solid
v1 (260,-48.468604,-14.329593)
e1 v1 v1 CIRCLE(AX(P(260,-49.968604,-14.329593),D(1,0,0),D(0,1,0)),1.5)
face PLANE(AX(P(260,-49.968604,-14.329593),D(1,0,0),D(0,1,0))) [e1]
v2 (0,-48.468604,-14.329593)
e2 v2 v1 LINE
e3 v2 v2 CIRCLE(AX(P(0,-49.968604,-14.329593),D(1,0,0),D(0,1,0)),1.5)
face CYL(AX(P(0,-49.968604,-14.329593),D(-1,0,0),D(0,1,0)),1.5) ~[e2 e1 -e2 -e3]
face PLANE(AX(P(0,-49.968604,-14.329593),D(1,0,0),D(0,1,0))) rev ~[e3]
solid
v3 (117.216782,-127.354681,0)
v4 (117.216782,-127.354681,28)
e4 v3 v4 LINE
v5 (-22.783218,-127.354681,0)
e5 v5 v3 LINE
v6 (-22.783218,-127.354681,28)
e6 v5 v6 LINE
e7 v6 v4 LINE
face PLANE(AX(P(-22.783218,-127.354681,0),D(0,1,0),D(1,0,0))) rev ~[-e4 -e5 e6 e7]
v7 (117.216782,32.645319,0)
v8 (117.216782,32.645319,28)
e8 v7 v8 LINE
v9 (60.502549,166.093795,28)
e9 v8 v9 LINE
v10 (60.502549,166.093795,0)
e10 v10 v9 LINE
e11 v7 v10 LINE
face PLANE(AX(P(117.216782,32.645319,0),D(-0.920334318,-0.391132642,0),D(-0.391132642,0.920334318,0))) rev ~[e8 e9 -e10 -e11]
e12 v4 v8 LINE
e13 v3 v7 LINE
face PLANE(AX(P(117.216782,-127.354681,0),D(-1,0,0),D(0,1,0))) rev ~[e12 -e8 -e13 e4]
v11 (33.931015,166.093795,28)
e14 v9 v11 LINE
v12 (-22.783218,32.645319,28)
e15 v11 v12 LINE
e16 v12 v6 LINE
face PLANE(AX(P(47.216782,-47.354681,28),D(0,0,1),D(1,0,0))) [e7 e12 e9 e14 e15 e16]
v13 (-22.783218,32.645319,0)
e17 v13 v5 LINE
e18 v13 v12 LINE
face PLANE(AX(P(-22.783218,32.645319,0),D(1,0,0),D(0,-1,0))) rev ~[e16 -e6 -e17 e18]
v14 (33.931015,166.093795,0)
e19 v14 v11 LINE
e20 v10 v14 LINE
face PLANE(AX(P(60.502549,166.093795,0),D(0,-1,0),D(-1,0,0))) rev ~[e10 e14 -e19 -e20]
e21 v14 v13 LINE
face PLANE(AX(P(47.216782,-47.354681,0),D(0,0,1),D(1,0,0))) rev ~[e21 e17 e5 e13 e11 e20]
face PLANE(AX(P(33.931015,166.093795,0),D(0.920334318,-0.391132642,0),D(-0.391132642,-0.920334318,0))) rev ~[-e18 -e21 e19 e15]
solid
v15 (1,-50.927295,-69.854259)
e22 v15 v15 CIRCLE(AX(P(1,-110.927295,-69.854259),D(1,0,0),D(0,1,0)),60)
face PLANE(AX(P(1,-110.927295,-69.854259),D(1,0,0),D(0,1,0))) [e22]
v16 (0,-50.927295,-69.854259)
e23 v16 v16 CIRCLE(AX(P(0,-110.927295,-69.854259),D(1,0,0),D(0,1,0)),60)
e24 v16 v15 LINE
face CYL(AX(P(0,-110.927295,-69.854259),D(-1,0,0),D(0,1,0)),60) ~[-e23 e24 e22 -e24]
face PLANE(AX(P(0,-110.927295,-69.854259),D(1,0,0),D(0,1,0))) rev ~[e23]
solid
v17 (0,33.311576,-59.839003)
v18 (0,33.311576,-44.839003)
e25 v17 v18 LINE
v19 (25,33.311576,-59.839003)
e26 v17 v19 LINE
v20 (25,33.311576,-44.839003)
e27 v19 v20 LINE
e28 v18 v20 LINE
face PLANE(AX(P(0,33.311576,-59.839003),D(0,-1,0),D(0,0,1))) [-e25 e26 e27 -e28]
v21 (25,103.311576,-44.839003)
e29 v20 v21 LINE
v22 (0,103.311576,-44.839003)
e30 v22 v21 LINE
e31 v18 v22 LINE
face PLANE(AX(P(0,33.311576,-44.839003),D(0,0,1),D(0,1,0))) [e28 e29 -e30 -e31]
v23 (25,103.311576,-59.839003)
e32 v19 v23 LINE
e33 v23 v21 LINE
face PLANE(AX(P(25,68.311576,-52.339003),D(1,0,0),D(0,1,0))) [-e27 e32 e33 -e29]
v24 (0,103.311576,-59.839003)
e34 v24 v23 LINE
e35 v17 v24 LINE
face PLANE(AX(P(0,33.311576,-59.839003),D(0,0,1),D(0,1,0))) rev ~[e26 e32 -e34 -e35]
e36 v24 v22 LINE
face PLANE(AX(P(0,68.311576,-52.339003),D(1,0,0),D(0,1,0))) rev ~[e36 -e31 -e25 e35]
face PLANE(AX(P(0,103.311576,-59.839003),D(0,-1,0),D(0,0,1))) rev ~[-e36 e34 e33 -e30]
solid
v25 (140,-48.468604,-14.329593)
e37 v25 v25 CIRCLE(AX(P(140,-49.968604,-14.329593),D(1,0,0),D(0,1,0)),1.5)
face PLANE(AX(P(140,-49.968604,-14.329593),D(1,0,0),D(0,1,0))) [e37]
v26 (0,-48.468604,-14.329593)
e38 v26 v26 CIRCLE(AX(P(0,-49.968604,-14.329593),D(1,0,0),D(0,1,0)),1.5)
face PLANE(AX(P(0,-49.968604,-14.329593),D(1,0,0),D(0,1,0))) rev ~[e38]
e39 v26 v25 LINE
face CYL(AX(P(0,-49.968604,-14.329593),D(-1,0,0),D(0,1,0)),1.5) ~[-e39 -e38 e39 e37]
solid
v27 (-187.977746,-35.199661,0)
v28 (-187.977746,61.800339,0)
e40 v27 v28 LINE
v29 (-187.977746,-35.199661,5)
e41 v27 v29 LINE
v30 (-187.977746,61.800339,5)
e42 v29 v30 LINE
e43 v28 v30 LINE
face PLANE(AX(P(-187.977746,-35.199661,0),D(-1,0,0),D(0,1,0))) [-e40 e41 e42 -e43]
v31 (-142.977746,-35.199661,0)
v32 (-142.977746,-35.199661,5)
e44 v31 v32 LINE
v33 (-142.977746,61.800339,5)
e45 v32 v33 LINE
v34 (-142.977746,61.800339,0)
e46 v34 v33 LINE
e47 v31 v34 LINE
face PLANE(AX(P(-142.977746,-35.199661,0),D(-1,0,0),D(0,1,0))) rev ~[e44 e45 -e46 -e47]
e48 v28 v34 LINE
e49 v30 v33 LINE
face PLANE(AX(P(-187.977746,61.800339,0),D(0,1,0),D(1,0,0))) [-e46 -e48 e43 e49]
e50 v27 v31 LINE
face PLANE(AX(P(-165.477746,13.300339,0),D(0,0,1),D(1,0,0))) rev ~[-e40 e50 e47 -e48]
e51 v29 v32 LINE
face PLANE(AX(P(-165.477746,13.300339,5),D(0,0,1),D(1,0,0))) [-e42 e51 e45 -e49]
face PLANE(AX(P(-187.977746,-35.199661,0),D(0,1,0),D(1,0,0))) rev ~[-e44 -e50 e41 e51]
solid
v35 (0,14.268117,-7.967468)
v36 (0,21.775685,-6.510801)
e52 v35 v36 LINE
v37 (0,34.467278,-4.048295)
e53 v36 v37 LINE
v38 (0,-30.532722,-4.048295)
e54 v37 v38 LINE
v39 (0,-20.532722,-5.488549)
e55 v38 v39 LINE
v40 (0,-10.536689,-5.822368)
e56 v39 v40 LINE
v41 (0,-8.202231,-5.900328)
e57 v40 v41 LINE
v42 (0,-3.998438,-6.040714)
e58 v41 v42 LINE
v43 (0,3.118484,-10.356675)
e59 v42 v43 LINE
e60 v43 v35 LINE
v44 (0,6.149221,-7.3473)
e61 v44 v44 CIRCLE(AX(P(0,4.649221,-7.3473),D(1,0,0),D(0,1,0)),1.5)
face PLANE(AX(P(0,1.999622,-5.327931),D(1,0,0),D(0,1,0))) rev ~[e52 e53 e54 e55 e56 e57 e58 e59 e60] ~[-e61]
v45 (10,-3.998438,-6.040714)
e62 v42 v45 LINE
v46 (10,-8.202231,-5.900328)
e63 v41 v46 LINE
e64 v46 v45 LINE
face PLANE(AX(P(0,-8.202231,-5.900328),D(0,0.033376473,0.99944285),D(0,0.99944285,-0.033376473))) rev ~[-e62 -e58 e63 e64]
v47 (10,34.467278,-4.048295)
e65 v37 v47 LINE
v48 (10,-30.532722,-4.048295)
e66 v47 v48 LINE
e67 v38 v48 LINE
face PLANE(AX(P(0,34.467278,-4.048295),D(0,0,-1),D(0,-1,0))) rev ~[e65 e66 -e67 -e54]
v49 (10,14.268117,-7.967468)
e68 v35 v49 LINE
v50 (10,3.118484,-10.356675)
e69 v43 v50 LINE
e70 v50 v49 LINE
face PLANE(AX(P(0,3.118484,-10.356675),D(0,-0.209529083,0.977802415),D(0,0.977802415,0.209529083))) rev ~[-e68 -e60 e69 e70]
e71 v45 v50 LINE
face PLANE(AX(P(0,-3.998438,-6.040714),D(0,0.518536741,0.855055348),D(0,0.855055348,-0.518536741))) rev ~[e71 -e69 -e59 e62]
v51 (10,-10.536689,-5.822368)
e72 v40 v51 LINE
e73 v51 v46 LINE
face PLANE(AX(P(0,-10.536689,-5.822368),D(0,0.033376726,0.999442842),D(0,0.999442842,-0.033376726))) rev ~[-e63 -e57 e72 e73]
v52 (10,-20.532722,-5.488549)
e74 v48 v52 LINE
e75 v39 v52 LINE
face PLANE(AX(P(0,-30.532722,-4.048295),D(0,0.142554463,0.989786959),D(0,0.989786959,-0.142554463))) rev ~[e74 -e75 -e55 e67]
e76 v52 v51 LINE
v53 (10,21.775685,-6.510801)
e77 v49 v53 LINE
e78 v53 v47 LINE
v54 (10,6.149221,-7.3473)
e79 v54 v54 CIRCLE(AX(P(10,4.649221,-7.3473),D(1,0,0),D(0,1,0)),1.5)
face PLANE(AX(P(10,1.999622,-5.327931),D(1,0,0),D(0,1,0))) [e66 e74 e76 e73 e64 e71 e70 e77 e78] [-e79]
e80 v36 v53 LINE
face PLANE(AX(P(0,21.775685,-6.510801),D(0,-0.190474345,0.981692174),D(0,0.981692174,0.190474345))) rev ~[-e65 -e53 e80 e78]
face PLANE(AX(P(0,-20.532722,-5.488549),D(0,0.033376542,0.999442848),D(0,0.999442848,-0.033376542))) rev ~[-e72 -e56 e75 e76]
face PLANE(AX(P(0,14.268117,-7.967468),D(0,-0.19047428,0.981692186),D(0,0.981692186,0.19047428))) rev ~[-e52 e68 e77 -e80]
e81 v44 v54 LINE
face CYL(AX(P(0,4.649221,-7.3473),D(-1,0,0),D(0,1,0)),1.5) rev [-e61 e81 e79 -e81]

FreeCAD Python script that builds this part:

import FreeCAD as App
import Part
import Sketcher
Q = App.Units.Quantity

doc = App.newDocument("Part")
body = doc.addObject("PartDesign::Body", "Body")

# Sketch on XY plane
sketch1 = body.newObject("Sketcher::SketchObject", "Sketch")
sketch1.AttachmentSupport = (doc.getObject("XY_Plane"), [""])
sketch1.MapMode = "FlatFace"
sketch1.addGeometry([
    Part.LineSegment(App.Vector(-23, 33, 0), App.Vector(-23, -127, 0)),  # 0
    Part.LineSegment(App.Vector(-23, -127, 0), App.Vector(117, -127, 0)),  # 1
    Part.LineSegment(App.Vector(117, -127, 0), App.Vector(117, 33, 0)),  # 2
    Part.LineSegment(App.Vector(117, 33, 0), App.Vector(61, 166, 0)),  # 3
    Part.LineSegment(App.Vector(61, 166, 0), App.Vector(34, 166, 0)),  # 4
    Part.LineSegment(App.Vector(34, 166, 0), App.Vector(-23, 33, 0)),  # 5
], False)
sketch1.addConstraint([
    Sketcher.Constraint("Coincident", 0, 2, 1, 1),
    Sketcher.Constraint("Coincident", 1, 2, 2, 1),
    Sketcher.Constraint("Coincident", 2, 2, 3, 1),
    Sketcher.Constraint("Coincident", 3, 2, 4, 1),
    Sketcher.Constraint("Coincident", 4, 2, 5, 1),
    Sketcher.Constraint("Coincident", 5, 2, 0, 1),
    Sketcher.Constraint("Vertical", 0),
    Sketcher.Constraint("Horizontal", 1),
    Sketcher.Constraint("Vertical", 2),
    Sketcher.Constraint("Horizontal", 4),
    Sketcher.Constraint("Horizontal", 2, 2, 5, 2),
    Sketcher.Constraint("Equal", 3, 5),
    Sketcher.Constraint("DistanceX", 1, 1, 1, 2, Q("140 mm")),
    Sketcher.Constraint("DistanceY", 0, 2, 0, 1, Q("160 mm")),
    Sketcher.Constraint("Distance", 3, Q("145 mm")),
    Sketcher.Constraint("DistanceX", 4, 2, 4, 1, Q("26.571534 mm")),
    Sketcher.Constraint("DistanceX", 0, 2, -1, 1, Q("22.783218 mm")),
    Sketcher.Constraint("DistanceY", 0, 2, -1, 1, Q("127.354681 mm")),
])
pad1 = body.newObject("PartDesign::Pad", "Pad")
pad1.Profile = sketch1
pad1.Length = 28
body2 = doc.addObject("PartDesign::Body", "Body001")

# Sketch on YZ plane
sketch2 = body2.newObject("Sketcher::SketchObject", "Sketch001")
sketch2.AttachmentSupport = (doc.getObject("YZ_Plane001"), [""])
sketch2.MapMode = "FlatFace"
sketch2.addGeometry(Part.Circle(App.Vector(-111, -70, 0), App.Vector(0, 0, 1), 60), False)
sketch2.addConstraint([
    Sketcher.Constraint("Diameter", 0, Q("120 mm")),
    Sketcher.Constraint("DistanceY", 0, 3, -1, 1, Q("69.854259 mm")),
    Sketcher.Constraint("DistanceX", 0, 3, -1, 1, Q("110.927295 mm")),
])
pad2 = body2.newObject("PartDesign::Pad", "Pad001")
pad2.Profile = sketch2
pad2.Length = 1
body3 = doc.addObject("PartDesign::Body", "Body002")

# Sketch on YZ plane
sketch3 = body3.newObject("Sketcher::SketchObject", "Sketch002")
sketch3.AttachmentSupport = (doc.getObject("YZ_Plane002"), [""])
sketch3.MapMode = "FlatFace"
sketch3.addGeometry(Part.Circle(App.Vector(-50, -14.3, 0), App.Vector(0, 0, 1), 1.5), False)
sketch3.addConstraint([
    Sketcher.Constraint("Diameter", 0, Q("3 mm")),
    Sketcher.Constraint("DistanceX", 0, 3, -1, 1, Q("49.968604 mm")),
    Sketcher.Constraint("DistanceY", 0, 3, -1, 1, Q("14.329593 mm")),
])
pad3 = body3.newObject("PartDesign::Pad", "Pad002")
pad3.Profile = sketch3
pad3.Length = 260
body4 = doc.addObject("PartDesign::Body", "Body003")

# Sketch on YZ plane
sketch4 = body4.newObject("Sketcher::SketchObject", "Sketch003")
sketch4.AttachmentSupport = (doc.getObject("YZ_Plane003"), [""])
sketch4.MapMode = "FlatFace"
sketch4.addGeometry([
    Part.LineSegment(App.Vector(-30.5, -4, 0), App.Vector(-20.5, -5.5, 0)),  # 0
    Part.LineSegment(App.Vector(-20.5, -5.5, 0), App.Vector(-10.5, -5.8, 0)),  # 1
    Part.LineSegment(App.Vector(-10.5, -5.8, 0), App.Vector(-8.2, -5.9, 0)),  # 2
    Part.LineSegment(App.Vector(-8.2, -5.9, 0), App.Vector(-4, -6, 0)),  # 3
    Part.LineSegment(App.Vector(-4, -6, 0), App.Vector(3.1, -10.4, 0)),  # 4
    Part.LineSegment(App.Vector(3.1, -10.4, 0), App.Vector(14.3, -8, 0)),  # 5
    Part.LineSegment(App.Vector(14.3, -8, 0), App.Vector(21.8, -6.5, 0)),  # 6
    Part.LineSegment(App.Vector(21.8, -6.5, 0), App.Vector(34.5, -4, 0)),  # 7
    Part.LineSegment(App.Vector(34.5, -4, 0), App.Vector(-30.5, -4, 0)),  # 8
    Part.Circle(App.Vector(4.6, -7.3, 0), App.Vector(0, 0, 1), 1.5),  # 9
], False)
sketch4.addConstraint([
    Sketcher.Constraint("Coincident", 0, 2, 1, 1),
    Sketcher.Constraint("Coincident", 1, 2, 2, 1),
    Sketcher.Constraint("Coincident", 2, 2, 3, 1),
    Sketcher.Constraint("Coincident", 3, 2, 4, 1),
    Sketcher.Constraint("Coincident", 4, 2, 5, 1),
    Sketcher.Constraint("Coincident", 5, 2, 6, 1),
    Sketcher.Constraint("Coincident", 6, 2, 7, 1),
    Sketcher.Constraint("Coincident", 7, 2, 8, 1),
    Sketcher.Constraint("Coincident", 8, 2, 0, 1),
    Sketcher.Constraint("Horizontal", 8),
    Sketcher.Constraint("Parallel", 1, 2),
    Sketcher.Constraint("Parallel", 2, 3),
    Sketcher.Constraint("Parallel", 6, 7),
    Sketcher.Constraint("Diameter", 9, Q("3 mm")),
    Sketcher.Constraint("DistanceX", 8, 2, 8, 1, Q("65 mm")),
    Sketcher.Constraint("DistanceX", 8, 2, 0, 2, Q("10 mm")),
    Sketcher.Constraint("DistanceY", 9, 3, -1, 1, Q("7.3473 mm")),
    Sketcher.Constraint("DistanceY", 6, 2, -1, 1, Q("6.510801 mm")),
    Sketcher.Constraint("DistanceY", 5, 2, 1, 2, Q("2.1451 mm")),
    Sketcher.Constraint("DistanceX", 4, 2, 6, 2, Q("18.657201 mm")),
    Sketcher.Constraint("Distance", 2, Q("2.335759 mm")),
    Sketcher.Constraint("Distance", 6, Q("7.647578 mm")),
    Sketcher.Constraint("Distance", 7, Q("12.928282 mm")),
    Sketcher.Constraint("DistanceX", -1, 1, 9, 3, Q("4.649221 mm")),
    Sketcher.Constraint("DistanceX", 0, 2, -1, 1, Q("20.532722 mm")),
    Sketcher.Constraint("DistanceY", 0, 2, -1, 1, Q("5.488549 mm")),
    Sketcher.Constraint("DistanceX", 1, 2, -1, 1, Q("10.536689 mm")),
    Sketcher.Constraint("DistanceX", 3, 2, -1, 1, Q("3.998438 mm")),
    Sketcher.Constraint("DistanceY", 5, 2, -1, 1, Q("7.967468 mm")),
    Sketcher.Constraint("DistanceY", 4, 2, 3, 2, Q("4.315961 mm")),
])
pad4 = body4.newObject("PartDesign::Pad", "Pad003")
pad4.Profile = sketch4
pad4.Length = 10
body5 = doc.addObject("PartDesign::Body", "Body004")

# Sketch on YZ plane
sketch5 = body5.newObject("Sketcher::SketchObject", "Sketch004")
sketch5.AttachmentSupport = (doc.getObject("YZ_Plane004"), [""])
sketch5.MapMode = "FlatFace"
sketch5.addGeometry([
    Part.LineSegment(App.Vector(33, -45, 0), App.Vector(33, -60, 0)),
    Part.LineSegment(App.Vector(33, -60, 0), App.Vector(103, -60, 0)),
    Part.LineSegment(App.Vector(103, -60, 0), App.Vector(103, -45, 0)),
    Part.LineSegment(App.Vector(103, -45, 0), App.Vector(33, -45, 0)),
], False)
sketch5.addConstraint([
    Sketcher.Constraint("Coincident", 0, 2, 1, 1),
    Sketcher.Constraint("Coincident", 1, 2, 2, 1),
    Sketcher.Constraint("Coincident", 2, 2, 3, 1),
    Sketcher.Constraint("Coincident", 3, 2, 0, 1),
    Sketcher.Constraint("Vertical", 0),
    Sketcher.Constraint("Horizontal", 1),
    Sketcher.Constraint("Vertical", 2),
    Sketcher.Constraint("Horizontal", 3),
    Sketcher.Constraint("DistanceX", 1, 1, 1, 2, Q("70 mm")),
    Sketcher.Constraint("DistanceY", 0, 2, 0, 1, Q("15 mm")),
    Sketcher.Constraint("DistanceX", -1, 1, 0, 2, Q("33.311576 mm")),
    Sketcher.Constraint("DistanceY", 0, 2, -1, 1, Q("59.839003 mm")),
])
pad5 = body5.newObject("PartDesign::Pad", "Pad004")
pad5.Profile = sketch5
pad5.Length = 25
body6 = doc.addObject("PartDesign::Body", "Body005")

# Sketch on XY plane
sketch6 = body6.newObject("Sketcher::SketchObject", "Sketch005")
sketch6.AttachmentSupport = (doc.getObject("XY_Plane005"), [""])
sketch6.MapMode = "FlatFace"
sketch6.addGeometry([
    Part.LineSegment(App.Vector(-188, 62, 0), App.Vector(-188, -35, 0)),
    Part.LineSegment(App.Vector(-188, -35, 0), App.Vector(-143, -35, 0)),
    Part.LineSegment(App.Vector(-143, -35, 0), App.Vector(-143, 62, 0)),
    Part.LineSegment(App.Vector(-143, 62, 0), App.Vector(-188, 62, 0)),
], False)
sketch6.addConstraint([
    Sketcher.Constraint("Coincident", 0, 2, 1, 1),
    Sketcher.Constraint("Coincident", 1, 2, 2, 1),
    Sketcher.Constraint("Coincident", 2, 2, 3, 1),
    Sketcher.Constraint("Coincident", 3, 2, 0, 1),
    Sketcher.Constraint("Vertical", 0),
    Sketcher.Constraint("Horizontal", 1),
    Sketcher.Constraint("Vertical", 2),
    Sketcher.Constraint("Horizontal", 3),
    Sketcher.Constraint("DistanceX", 1, 1, 1, 2, Q("45 mm")),
    Sketcher.Constraint("DistanceY", 0, 2, 0, 1, Q("97 mm")),
    Sketcher.Constraint("DistanceY", 0, 2, -1, 1, Q("35.199661 mm")),
    Sketcher.Constraint("DistanceX", 0, 2, -1, 1, Q("187.977746 mm")),
])
pad6 = body6.newObject("PartDesign::Pad", "Pad005")
pad6.Profile = sketch6
pad6.Length = 5
body7 = doc.addObject("PartDesign::Body", "Body006")

# Sketch on YZ plane
sketch7 = body7.newObject("Sketcher::SketchObject", "Sketch006")
sketch7.AttachmentSupport = (doc.getObject("YZ_Plane006"), [""])
sketch7.MapMode = "FlatFace"
sketch7.addGeometry(Part.Circle(App.Vector(-50, -14.3, 0), App.Vector(0, 0, 1), 1.5), False)
sketch7.addConstraint([
    Sketcher.Constraint("Diameter", 0, Q("3 mm")),
    Sketcher.Constraint("DistanceX", 0, 3, -1, 1, Q("49.968604 mm")),
    Sketcher.Constraint("DistanceY", 0, 3, -1, 1, Q("14.329593 mm")),
])
pad7 = body7.newObject("PartDesign::Pad", "Pad006")
pad7.Profile = sketch7
pad7.Length = 140

doc.recompute()
